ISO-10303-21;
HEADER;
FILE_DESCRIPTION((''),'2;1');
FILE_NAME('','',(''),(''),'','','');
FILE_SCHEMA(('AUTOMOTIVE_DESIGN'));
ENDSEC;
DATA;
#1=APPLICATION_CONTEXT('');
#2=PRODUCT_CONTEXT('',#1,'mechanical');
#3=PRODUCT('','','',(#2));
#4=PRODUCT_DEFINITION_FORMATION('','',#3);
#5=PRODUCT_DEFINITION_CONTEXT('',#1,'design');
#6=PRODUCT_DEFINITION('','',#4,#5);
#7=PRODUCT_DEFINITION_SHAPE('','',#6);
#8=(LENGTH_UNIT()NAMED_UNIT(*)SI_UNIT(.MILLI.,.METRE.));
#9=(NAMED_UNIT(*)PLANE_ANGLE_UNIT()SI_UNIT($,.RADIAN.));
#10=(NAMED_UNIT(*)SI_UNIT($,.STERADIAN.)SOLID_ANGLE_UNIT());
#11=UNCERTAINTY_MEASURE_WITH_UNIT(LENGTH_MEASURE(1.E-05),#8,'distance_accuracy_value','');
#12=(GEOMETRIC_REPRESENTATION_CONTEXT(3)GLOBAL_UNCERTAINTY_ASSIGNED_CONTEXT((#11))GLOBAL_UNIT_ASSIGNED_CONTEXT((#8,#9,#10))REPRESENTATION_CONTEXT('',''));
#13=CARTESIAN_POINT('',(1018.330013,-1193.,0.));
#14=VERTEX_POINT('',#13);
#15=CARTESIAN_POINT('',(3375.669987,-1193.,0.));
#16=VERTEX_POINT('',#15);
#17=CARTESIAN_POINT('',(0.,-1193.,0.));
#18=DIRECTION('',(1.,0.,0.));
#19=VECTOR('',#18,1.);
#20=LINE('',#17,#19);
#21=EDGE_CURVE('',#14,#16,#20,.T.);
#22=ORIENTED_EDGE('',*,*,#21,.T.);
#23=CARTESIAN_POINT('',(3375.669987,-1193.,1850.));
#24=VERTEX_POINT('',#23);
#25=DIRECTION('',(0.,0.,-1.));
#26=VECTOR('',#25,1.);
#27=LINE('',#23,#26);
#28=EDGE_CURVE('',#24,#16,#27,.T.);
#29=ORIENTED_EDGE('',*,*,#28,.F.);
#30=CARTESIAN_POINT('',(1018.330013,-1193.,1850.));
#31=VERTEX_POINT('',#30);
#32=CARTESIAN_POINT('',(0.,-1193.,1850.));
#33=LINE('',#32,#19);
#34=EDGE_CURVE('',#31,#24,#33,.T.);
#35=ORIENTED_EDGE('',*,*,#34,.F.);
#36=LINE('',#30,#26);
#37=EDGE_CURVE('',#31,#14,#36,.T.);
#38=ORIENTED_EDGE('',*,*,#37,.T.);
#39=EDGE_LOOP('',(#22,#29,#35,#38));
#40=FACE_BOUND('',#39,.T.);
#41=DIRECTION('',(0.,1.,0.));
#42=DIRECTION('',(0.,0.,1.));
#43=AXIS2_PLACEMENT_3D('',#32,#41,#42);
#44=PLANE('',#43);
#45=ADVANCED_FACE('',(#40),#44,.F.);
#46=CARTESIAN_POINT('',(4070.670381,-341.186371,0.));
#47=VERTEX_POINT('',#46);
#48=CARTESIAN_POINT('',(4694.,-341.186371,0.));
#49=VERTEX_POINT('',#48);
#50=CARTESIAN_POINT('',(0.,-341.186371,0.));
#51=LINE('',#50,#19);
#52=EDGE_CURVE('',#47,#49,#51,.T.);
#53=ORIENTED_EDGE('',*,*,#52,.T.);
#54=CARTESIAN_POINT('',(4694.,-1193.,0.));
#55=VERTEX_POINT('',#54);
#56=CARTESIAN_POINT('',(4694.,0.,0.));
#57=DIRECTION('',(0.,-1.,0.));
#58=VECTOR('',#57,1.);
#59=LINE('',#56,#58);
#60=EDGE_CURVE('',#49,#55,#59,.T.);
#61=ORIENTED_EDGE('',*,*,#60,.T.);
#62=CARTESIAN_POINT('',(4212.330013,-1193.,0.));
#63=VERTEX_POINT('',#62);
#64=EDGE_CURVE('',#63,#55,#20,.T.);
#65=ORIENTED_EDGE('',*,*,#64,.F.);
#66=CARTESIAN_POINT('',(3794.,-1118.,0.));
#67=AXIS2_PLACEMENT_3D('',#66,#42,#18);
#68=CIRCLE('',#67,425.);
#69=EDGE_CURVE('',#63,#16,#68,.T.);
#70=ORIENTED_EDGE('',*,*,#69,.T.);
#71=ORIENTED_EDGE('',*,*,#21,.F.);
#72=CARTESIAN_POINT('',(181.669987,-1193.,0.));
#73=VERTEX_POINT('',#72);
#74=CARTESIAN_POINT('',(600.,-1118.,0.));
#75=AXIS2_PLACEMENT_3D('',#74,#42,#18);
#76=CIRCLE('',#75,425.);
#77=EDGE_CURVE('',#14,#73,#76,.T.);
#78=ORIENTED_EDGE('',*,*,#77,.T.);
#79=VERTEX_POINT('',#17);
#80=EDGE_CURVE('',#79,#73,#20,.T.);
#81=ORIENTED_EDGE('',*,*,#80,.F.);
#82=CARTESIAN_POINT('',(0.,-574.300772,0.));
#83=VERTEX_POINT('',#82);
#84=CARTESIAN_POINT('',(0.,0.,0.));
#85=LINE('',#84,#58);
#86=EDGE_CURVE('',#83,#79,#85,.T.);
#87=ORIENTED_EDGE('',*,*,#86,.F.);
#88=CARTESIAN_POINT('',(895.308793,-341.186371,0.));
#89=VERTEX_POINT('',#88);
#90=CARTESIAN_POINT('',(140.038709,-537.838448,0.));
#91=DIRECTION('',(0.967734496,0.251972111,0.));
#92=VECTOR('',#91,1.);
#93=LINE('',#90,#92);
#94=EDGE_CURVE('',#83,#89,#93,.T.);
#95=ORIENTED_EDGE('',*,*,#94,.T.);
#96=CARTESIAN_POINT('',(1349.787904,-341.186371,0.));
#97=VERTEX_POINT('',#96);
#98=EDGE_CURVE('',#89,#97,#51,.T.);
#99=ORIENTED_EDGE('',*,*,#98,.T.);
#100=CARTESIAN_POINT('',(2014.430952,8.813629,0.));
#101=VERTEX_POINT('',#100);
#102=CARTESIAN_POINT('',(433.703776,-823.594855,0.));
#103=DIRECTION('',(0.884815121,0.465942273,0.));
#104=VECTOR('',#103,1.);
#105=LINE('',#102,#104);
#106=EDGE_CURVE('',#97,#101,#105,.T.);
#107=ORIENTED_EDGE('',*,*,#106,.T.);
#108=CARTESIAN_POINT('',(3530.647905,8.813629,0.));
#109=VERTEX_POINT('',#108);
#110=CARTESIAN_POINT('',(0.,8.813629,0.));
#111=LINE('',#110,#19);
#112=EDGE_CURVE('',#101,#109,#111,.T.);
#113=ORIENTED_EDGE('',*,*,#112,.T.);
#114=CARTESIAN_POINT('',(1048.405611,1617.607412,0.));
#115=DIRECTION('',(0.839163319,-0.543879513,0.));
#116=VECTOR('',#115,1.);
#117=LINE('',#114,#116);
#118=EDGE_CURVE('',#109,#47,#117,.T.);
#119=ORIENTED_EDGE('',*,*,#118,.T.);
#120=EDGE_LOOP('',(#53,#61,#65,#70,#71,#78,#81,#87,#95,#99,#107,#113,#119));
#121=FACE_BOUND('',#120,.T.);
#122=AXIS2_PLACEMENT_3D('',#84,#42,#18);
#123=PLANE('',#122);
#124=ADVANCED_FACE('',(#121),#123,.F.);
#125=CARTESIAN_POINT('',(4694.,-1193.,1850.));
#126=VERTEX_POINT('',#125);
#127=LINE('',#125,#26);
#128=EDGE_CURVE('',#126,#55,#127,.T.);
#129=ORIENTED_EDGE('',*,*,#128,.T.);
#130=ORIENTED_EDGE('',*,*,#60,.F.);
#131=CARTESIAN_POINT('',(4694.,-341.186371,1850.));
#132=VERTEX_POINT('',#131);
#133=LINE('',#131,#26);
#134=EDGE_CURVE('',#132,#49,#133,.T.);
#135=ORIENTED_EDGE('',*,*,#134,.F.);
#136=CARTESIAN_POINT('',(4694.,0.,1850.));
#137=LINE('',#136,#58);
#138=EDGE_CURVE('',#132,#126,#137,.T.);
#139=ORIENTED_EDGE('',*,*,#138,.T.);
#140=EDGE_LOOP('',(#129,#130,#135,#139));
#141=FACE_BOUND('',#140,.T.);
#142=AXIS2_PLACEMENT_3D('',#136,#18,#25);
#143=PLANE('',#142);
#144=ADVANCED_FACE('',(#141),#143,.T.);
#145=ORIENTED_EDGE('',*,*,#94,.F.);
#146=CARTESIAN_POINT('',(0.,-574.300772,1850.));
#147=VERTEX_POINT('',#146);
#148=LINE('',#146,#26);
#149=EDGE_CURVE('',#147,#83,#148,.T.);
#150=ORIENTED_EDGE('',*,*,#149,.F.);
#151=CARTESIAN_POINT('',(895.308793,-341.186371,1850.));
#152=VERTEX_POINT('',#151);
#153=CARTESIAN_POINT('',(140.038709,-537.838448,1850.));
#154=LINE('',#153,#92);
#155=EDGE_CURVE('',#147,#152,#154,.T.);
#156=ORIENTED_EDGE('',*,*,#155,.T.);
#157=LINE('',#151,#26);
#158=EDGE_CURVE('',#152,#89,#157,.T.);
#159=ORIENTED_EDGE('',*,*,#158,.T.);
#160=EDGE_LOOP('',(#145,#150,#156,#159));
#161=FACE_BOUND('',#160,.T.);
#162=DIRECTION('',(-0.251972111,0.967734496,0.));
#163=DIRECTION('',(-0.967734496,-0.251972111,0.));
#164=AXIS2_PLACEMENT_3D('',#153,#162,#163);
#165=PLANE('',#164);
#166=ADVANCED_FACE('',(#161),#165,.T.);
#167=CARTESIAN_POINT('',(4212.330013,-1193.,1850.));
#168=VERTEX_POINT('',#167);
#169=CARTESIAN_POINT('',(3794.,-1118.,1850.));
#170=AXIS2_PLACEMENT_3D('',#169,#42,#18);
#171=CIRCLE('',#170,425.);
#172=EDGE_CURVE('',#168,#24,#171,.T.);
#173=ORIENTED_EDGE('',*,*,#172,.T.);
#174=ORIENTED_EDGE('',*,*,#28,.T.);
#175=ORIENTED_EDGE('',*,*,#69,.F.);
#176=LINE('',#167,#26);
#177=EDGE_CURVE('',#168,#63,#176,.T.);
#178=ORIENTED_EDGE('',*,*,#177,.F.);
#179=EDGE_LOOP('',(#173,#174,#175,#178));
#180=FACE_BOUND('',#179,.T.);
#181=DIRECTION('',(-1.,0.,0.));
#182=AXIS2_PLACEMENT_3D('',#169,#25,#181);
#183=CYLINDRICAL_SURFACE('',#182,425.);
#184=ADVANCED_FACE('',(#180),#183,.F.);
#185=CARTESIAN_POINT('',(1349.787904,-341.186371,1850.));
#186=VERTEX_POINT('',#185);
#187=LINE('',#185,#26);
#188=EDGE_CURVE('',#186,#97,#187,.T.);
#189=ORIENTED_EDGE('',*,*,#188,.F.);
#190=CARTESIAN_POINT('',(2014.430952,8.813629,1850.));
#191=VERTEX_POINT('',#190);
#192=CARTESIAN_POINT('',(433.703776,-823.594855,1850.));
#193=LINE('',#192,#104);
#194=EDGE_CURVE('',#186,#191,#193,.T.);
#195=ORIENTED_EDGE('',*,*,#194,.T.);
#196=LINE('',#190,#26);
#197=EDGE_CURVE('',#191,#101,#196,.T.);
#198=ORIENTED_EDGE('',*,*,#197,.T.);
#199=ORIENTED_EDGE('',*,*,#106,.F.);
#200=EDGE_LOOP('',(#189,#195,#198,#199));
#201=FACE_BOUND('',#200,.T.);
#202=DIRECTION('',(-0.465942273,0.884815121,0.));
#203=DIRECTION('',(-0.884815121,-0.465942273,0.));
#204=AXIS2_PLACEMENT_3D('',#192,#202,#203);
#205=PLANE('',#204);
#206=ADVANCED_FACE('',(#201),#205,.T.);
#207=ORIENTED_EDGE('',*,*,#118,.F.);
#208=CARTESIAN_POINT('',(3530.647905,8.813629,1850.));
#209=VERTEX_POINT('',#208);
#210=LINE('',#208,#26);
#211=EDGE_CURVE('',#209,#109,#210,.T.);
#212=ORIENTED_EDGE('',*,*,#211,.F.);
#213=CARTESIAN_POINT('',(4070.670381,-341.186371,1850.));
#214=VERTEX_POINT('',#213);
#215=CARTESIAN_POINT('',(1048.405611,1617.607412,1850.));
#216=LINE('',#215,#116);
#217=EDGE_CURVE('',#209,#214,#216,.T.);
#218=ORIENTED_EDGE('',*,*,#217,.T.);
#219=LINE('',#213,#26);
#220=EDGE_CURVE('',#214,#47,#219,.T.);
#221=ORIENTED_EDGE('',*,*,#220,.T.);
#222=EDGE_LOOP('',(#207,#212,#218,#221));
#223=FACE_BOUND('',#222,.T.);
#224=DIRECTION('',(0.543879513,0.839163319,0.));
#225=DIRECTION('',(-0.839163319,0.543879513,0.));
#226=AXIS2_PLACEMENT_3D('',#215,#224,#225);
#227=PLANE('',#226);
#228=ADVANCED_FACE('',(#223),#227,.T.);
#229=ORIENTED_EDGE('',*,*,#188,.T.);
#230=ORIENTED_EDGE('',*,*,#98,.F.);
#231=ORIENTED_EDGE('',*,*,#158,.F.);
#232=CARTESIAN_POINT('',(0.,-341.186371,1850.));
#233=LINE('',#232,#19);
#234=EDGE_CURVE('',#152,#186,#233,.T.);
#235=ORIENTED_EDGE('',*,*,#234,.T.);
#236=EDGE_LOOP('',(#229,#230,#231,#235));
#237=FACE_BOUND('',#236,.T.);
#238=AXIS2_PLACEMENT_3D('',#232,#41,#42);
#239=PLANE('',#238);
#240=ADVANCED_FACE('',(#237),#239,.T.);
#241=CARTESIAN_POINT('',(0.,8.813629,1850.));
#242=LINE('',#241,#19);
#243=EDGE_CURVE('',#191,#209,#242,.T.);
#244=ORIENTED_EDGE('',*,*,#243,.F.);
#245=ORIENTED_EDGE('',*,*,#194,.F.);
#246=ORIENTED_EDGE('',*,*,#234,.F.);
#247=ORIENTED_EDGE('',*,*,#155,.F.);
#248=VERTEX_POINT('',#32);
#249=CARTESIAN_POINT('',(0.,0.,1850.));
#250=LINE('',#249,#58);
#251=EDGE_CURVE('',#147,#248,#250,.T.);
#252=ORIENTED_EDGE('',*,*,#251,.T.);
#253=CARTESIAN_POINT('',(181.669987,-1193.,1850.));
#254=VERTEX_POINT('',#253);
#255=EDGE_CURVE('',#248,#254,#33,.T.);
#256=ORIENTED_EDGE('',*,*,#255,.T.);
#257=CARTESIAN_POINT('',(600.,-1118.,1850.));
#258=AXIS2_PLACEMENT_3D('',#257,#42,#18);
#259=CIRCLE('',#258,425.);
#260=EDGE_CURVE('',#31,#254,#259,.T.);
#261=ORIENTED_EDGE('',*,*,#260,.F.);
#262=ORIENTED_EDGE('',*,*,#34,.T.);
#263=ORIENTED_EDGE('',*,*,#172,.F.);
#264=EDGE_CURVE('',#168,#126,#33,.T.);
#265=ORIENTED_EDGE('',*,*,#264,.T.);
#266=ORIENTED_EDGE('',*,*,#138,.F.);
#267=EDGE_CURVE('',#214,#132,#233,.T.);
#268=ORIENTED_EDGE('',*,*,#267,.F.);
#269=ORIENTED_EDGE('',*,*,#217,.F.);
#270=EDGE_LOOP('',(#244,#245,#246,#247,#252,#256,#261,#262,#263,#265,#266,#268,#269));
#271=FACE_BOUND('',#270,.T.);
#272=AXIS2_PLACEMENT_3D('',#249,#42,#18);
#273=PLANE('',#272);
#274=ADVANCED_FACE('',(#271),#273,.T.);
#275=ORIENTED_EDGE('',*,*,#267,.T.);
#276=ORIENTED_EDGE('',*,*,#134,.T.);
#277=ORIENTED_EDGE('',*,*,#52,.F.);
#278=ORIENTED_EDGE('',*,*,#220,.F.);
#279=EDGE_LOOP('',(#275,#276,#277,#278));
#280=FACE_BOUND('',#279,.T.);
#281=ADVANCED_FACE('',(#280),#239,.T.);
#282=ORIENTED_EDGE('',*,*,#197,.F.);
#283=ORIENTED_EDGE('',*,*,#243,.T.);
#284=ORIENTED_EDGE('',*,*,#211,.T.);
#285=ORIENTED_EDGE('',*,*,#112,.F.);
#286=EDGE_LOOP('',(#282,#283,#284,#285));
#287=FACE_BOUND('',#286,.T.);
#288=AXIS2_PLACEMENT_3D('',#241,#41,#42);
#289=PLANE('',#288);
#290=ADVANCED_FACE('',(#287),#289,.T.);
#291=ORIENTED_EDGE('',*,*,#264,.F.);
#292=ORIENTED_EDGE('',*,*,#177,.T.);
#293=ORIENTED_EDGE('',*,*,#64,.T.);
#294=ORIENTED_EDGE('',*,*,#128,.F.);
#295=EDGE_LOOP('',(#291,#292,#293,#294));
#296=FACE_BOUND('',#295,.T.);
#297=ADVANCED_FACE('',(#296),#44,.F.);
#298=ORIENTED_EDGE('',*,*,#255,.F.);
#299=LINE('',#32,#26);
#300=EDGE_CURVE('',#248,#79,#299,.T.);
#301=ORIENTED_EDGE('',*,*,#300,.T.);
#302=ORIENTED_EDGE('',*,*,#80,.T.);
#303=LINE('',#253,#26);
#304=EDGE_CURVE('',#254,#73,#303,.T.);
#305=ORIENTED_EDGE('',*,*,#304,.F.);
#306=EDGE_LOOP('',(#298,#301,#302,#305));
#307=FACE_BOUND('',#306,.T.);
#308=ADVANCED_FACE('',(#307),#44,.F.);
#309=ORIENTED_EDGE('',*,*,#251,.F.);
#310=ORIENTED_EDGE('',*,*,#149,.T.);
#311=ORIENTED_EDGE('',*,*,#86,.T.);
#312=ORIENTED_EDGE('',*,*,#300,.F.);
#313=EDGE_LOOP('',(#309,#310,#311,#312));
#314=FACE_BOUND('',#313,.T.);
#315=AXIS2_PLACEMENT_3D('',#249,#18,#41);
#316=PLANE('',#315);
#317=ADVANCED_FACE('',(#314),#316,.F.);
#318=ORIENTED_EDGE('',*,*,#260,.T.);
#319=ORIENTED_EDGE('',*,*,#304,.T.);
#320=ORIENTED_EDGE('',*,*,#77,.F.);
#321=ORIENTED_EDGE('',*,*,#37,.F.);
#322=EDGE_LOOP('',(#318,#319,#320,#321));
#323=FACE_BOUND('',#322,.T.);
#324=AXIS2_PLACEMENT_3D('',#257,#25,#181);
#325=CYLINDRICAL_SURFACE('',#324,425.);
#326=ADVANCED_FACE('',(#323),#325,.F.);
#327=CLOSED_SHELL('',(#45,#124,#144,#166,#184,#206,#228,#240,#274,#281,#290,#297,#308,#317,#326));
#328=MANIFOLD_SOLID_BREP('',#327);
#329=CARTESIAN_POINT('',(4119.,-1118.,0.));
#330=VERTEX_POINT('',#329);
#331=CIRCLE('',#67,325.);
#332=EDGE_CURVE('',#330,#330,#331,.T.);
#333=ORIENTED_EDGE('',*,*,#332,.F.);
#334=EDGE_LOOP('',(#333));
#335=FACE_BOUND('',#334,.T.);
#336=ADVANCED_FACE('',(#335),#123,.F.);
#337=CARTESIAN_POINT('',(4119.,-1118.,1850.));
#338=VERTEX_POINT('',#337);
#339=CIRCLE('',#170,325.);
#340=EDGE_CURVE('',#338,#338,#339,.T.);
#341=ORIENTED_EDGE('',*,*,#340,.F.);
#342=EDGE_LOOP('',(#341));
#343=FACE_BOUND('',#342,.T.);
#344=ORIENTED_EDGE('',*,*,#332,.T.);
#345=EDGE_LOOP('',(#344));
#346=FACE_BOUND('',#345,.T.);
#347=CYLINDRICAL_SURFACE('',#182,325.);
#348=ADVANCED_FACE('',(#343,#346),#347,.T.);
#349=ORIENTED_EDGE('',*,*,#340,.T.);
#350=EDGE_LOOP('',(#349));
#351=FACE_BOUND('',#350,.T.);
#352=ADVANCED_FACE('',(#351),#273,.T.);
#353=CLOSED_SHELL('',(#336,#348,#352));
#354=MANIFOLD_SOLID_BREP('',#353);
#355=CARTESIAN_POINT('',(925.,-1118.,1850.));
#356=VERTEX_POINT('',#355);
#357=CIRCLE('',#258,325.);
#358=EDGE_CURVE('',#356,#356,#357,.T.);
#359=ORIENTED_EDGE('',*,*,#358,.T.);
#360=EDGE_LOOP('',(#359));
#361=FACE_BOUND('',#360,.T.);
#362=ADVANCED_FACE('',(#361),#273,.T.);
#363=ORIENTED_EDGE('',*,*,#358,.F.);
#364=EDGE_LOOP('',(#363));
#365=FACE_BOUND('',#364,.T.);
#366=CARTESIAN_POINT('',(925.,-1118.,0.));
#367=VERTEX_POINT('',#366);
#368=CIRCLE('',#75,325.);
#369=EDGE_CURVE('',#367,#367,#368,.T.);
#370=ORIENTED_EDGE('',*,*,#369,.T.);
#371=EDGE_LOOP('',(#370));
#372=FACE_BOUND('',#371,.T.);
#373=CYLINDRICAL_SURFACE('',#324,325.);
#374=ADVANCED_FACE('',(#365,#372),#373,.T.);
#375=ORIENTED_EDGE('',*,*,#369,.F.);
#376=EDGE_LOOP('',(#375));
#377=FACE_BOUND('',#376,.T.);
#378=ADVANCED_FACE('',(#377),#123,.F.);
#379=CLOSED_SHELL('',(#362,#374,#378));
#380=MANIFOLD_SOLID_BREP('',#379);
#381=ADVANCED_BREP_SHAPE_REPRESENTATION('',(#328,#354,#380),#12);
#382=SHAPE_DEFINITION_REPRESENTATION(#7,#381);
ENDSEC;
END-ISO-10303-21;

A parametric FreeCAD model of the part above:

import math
import FreeCAD as App
import Part
import Sketcher

V = App.Vector

doc = App.newDocument("Part")
params = doc.addObject("Spreadsheet::Sheet", "Params")
for row, (alias, value) in enumerate([
    ("sketch1_radius", "425 mm"),
    ("pad1_length", "1850 mm"),
    ("sketch2_diameter", "650 mm"),
    ("pad2_length", "1850 mm"),
    ("sketch3_diameter", "650 mm"),
    ("pad3_length", "1850 mm"),
], start=1):
    params.set(f"A{row}", alias)
    params.set(f"B{row}", "=" + value)
    params.setAlias(f"B{row}", alias)

body = doc.addObject("PartDesign::Body", "Body")

# Sketch on XY plane
sketch1 = body.newObject("Sketcher::SketchObject", "Sketch")
sketch1.AttachmentSupport = (doc.getObject("XY_Plane"), [""])
sketch1.MapMode = "FlatFace"
sketch1.addGeometry([
    Part.ArcOfCircle(Part.Circle(V(3794, -1118, 0), V(0, 0, 1), 425), math.radians(-10), math.radians(190)),  # 0
    Part.LineSegment(V(4212, -1193, 0), V(4694, -1193, 0)),  # 1
    Part.LineSegment(V(4694, -1193, 0), V(4694, -341, 0)),  # 2
    Part.LineSegment(V(4694, -341, 0), V(4071, -341, 0)),  # 3
    Part.LineSegment(V(4071, -341, 0), V(3531, 9, 0)),  # 4
    Part.LineSegment(V(3531, 9, 0), V(2014, 9, 0)),  # 5
    Part.LineSegment(V(2014, 9, 0), V(1350, -341, 0)),  # 6
    Part.LineSegment(V(1350, -341, 0), V(895, -341, 0)),  # 7
    Part.LineSegment(V(895, -341, 0), V(0, -574, 0)),  # 8
    Part.LineSegment(V(0, -574, 0), V(0, -1193, 0)),  # 9
    Part.LineSegment(V(0, -1193, 0), V(182, -1193, 0)),  # 10
    Part.ArcOfCircle(Part.Circle(V(600, -1118, 0), V(0, 0, 1), 425), math.radians(-10), math.radians(190)),  # 11
    Part.LineSegment(V(1018, -1193, 0), V(3376, -1193, 0)),  # 12
], False)
sketch1.addConstraint([
    Sketcher.Constraint("Coincident", 0, 1, 1, 1),
    Sketcher.Constraint("Coincident", 1, 2, 2, 1),
    Sketcher.Constraint("Coincident", 2, 2, 3, 1),
    Sketcher.Constraint("Coincident", 3, 2, 4, 1),
    Sketcher.Constraint("Coincident", 4, 2, 5, 1),
    Sketcher.Constraint("Coincident", 5, 2, 6, 1),
    Sketcher.Constraint("Coincident", 6, 2, 7, 1),
    Sketcher.Constraint("Coincident", 7, 2, 8, 1),
    Sketcher.Constraint("Coincident", 8, 2, 9, 1),
    Sketcher.Constraint("Coincident", 9, 2, 10, 1),
    Sketcher.Constraint("Coincident", 10, 2, 11, 2),
    Sketcher.Constraint("Coincident", 11, 1, 12, 1),
    Sketcher.Constraint("Coincident", 12, 2, 0, 2),
    Sketcher.Constraint("Horizontal", 1),
    Sketcher.Constraint("Vertical", 2),
    Sketcher.Constraint("Horizontal", 3),
    Sketcher.Constraint("Horizontal", 5),
    Sketcher.Constraint("Horizontal", 7),
    Sketcher.Constraint("Vertical", 9),
    Sketcher.Constraint("Horizontal", 10),
    Sketcher.Constraint("Horizontal", 12),
    Sketcher.Constraint("Equal", 0, 11),
    Sketcher.Constraint("PointOnObject", 8, 2, -2),
    Sketcher.Constraint("Horizontal", 0, 3, 11, 3),
    Sketcher.Constraint("Horizontal", 3, 2, 6, 2),
    Sketcher.Constraint("Horizontal", 1, 2, 9, 2),
    Sketcher.Constraint("Radius", 0, 425.0),
    Sketcher.Constraint("DistanceX", -1, 1, 0, 3, 3794.0),
    Sketcher.Constraint("DistanceY", 0, 3, -1, 1, 1118.0),
    Sketcher.Constraint("DistanceX", -1, 1, 11, 3, 600.0),
    Sketcher.Constraint("DistanceX", -1, 1, 1, 2, 4694.0),
    Sketcher.Constraint("DistanceY", 1, 2, -1, 1, 1193.0),
    Sketcher.Constraint("DistanceY", 12, 2, -1, 1, 1193.0),
    Sketcher.Constraint("DistanceY", 3, 2, 4, 2, 350.0),
    Sketcher.Constraint("DistanceX", 6, 2, 4, 2, 2180.860001),
    Sketcher.Constraint("DistanceX", 3, 2, 3, 1, 623.329619),
    Sketcher.Constraint("DistanceX", 7, 2, 7, 1, 454.479111),
    Sketcher.Constraint("DistanceY", 2, 1, 2, 2, 851.813629),
    Sketcher.Constraint("DistanceY", 9, 2, 9, 1, 618.699228),
    Sketcher.Constraint("Distance", 8, 925.159531),
    Sketcher.Constraint("DistanceX", 5, 2, 5, 1, 1516.216953),
])
sketch1.setExpression("Constraints[26]", "Params.sketch1_radius")
pad1 = body.newObject("PartDesign::Pad", "Pad")
pad1.Profile = sketch1
pad1.setExpression("Length", "Params.pad1_length")
body2 = doc.addObject("PartDesign::Body", "Body001")

# Sketch on XY plane
sketch2 = body2.newObject("Sketcher::SketchObject", "Sketch001")
sketch2.AttachmentSupport = (doc.getObject("XY_Plane001"), [""])
sketch2.MapMode = "FlatFace"
sketch2.addGeometry(Part.Circle(V(600, -1118, 0), V(0, 0, 1), 325), False)
sketch2.addConstraint([
    Sketcher.Constraint("Diameter", 0, 650.0),
    Sketcher.Constraint("DistanceX", -1, 1, 0, 3, 600.0),
    Sketcher.Constraint("DistanceY", 0, 3, -1, 1, 1118.0),
])
sketch2.setExpression("Constraints[0]", "Params.sketch2_diameter")
pad2 = body2.newObject("PartDesign::Pad", "Pad001")
pad2.Profile = sketch2
pad2.setExpression("Length", "Params.pad2_length")
body3 = doc.addObject("PartDesign::Body", "Body002")

# Sketch on XY plane
sketch3 = body3.newObject("Sketcher::SketchObject", "Sketch002")
sketch3.AttachmentSupport = (doc.getObject("XY_Plane002"), [""])
sketch3.MapMode = "FlatFace"
sketch3.addGeometry(Part.Circle(V(3794, -1118, 0), V(0, 0, 1), 325), False)
sketch3.addConstraint([
    Sketcher.Constraint("Diameter", 0, 650.0),
    Sketcher.Constraint("DistanceX", -1, 1, 0, 3, 3794.0),
    Sketcher.Constraint("DistanceY", 0, 3, -1, 1, 1118.0),
])
sketch3.setExpression("Constraints[0]", "Params.sketch3_diameter")
pad3 = body3.newObject("PartDesign::Pad", "Pad002")
pad3.Profile = sketch3
pad3.setExpression("Length", "Params.pad3_length")

doc.recompute()
